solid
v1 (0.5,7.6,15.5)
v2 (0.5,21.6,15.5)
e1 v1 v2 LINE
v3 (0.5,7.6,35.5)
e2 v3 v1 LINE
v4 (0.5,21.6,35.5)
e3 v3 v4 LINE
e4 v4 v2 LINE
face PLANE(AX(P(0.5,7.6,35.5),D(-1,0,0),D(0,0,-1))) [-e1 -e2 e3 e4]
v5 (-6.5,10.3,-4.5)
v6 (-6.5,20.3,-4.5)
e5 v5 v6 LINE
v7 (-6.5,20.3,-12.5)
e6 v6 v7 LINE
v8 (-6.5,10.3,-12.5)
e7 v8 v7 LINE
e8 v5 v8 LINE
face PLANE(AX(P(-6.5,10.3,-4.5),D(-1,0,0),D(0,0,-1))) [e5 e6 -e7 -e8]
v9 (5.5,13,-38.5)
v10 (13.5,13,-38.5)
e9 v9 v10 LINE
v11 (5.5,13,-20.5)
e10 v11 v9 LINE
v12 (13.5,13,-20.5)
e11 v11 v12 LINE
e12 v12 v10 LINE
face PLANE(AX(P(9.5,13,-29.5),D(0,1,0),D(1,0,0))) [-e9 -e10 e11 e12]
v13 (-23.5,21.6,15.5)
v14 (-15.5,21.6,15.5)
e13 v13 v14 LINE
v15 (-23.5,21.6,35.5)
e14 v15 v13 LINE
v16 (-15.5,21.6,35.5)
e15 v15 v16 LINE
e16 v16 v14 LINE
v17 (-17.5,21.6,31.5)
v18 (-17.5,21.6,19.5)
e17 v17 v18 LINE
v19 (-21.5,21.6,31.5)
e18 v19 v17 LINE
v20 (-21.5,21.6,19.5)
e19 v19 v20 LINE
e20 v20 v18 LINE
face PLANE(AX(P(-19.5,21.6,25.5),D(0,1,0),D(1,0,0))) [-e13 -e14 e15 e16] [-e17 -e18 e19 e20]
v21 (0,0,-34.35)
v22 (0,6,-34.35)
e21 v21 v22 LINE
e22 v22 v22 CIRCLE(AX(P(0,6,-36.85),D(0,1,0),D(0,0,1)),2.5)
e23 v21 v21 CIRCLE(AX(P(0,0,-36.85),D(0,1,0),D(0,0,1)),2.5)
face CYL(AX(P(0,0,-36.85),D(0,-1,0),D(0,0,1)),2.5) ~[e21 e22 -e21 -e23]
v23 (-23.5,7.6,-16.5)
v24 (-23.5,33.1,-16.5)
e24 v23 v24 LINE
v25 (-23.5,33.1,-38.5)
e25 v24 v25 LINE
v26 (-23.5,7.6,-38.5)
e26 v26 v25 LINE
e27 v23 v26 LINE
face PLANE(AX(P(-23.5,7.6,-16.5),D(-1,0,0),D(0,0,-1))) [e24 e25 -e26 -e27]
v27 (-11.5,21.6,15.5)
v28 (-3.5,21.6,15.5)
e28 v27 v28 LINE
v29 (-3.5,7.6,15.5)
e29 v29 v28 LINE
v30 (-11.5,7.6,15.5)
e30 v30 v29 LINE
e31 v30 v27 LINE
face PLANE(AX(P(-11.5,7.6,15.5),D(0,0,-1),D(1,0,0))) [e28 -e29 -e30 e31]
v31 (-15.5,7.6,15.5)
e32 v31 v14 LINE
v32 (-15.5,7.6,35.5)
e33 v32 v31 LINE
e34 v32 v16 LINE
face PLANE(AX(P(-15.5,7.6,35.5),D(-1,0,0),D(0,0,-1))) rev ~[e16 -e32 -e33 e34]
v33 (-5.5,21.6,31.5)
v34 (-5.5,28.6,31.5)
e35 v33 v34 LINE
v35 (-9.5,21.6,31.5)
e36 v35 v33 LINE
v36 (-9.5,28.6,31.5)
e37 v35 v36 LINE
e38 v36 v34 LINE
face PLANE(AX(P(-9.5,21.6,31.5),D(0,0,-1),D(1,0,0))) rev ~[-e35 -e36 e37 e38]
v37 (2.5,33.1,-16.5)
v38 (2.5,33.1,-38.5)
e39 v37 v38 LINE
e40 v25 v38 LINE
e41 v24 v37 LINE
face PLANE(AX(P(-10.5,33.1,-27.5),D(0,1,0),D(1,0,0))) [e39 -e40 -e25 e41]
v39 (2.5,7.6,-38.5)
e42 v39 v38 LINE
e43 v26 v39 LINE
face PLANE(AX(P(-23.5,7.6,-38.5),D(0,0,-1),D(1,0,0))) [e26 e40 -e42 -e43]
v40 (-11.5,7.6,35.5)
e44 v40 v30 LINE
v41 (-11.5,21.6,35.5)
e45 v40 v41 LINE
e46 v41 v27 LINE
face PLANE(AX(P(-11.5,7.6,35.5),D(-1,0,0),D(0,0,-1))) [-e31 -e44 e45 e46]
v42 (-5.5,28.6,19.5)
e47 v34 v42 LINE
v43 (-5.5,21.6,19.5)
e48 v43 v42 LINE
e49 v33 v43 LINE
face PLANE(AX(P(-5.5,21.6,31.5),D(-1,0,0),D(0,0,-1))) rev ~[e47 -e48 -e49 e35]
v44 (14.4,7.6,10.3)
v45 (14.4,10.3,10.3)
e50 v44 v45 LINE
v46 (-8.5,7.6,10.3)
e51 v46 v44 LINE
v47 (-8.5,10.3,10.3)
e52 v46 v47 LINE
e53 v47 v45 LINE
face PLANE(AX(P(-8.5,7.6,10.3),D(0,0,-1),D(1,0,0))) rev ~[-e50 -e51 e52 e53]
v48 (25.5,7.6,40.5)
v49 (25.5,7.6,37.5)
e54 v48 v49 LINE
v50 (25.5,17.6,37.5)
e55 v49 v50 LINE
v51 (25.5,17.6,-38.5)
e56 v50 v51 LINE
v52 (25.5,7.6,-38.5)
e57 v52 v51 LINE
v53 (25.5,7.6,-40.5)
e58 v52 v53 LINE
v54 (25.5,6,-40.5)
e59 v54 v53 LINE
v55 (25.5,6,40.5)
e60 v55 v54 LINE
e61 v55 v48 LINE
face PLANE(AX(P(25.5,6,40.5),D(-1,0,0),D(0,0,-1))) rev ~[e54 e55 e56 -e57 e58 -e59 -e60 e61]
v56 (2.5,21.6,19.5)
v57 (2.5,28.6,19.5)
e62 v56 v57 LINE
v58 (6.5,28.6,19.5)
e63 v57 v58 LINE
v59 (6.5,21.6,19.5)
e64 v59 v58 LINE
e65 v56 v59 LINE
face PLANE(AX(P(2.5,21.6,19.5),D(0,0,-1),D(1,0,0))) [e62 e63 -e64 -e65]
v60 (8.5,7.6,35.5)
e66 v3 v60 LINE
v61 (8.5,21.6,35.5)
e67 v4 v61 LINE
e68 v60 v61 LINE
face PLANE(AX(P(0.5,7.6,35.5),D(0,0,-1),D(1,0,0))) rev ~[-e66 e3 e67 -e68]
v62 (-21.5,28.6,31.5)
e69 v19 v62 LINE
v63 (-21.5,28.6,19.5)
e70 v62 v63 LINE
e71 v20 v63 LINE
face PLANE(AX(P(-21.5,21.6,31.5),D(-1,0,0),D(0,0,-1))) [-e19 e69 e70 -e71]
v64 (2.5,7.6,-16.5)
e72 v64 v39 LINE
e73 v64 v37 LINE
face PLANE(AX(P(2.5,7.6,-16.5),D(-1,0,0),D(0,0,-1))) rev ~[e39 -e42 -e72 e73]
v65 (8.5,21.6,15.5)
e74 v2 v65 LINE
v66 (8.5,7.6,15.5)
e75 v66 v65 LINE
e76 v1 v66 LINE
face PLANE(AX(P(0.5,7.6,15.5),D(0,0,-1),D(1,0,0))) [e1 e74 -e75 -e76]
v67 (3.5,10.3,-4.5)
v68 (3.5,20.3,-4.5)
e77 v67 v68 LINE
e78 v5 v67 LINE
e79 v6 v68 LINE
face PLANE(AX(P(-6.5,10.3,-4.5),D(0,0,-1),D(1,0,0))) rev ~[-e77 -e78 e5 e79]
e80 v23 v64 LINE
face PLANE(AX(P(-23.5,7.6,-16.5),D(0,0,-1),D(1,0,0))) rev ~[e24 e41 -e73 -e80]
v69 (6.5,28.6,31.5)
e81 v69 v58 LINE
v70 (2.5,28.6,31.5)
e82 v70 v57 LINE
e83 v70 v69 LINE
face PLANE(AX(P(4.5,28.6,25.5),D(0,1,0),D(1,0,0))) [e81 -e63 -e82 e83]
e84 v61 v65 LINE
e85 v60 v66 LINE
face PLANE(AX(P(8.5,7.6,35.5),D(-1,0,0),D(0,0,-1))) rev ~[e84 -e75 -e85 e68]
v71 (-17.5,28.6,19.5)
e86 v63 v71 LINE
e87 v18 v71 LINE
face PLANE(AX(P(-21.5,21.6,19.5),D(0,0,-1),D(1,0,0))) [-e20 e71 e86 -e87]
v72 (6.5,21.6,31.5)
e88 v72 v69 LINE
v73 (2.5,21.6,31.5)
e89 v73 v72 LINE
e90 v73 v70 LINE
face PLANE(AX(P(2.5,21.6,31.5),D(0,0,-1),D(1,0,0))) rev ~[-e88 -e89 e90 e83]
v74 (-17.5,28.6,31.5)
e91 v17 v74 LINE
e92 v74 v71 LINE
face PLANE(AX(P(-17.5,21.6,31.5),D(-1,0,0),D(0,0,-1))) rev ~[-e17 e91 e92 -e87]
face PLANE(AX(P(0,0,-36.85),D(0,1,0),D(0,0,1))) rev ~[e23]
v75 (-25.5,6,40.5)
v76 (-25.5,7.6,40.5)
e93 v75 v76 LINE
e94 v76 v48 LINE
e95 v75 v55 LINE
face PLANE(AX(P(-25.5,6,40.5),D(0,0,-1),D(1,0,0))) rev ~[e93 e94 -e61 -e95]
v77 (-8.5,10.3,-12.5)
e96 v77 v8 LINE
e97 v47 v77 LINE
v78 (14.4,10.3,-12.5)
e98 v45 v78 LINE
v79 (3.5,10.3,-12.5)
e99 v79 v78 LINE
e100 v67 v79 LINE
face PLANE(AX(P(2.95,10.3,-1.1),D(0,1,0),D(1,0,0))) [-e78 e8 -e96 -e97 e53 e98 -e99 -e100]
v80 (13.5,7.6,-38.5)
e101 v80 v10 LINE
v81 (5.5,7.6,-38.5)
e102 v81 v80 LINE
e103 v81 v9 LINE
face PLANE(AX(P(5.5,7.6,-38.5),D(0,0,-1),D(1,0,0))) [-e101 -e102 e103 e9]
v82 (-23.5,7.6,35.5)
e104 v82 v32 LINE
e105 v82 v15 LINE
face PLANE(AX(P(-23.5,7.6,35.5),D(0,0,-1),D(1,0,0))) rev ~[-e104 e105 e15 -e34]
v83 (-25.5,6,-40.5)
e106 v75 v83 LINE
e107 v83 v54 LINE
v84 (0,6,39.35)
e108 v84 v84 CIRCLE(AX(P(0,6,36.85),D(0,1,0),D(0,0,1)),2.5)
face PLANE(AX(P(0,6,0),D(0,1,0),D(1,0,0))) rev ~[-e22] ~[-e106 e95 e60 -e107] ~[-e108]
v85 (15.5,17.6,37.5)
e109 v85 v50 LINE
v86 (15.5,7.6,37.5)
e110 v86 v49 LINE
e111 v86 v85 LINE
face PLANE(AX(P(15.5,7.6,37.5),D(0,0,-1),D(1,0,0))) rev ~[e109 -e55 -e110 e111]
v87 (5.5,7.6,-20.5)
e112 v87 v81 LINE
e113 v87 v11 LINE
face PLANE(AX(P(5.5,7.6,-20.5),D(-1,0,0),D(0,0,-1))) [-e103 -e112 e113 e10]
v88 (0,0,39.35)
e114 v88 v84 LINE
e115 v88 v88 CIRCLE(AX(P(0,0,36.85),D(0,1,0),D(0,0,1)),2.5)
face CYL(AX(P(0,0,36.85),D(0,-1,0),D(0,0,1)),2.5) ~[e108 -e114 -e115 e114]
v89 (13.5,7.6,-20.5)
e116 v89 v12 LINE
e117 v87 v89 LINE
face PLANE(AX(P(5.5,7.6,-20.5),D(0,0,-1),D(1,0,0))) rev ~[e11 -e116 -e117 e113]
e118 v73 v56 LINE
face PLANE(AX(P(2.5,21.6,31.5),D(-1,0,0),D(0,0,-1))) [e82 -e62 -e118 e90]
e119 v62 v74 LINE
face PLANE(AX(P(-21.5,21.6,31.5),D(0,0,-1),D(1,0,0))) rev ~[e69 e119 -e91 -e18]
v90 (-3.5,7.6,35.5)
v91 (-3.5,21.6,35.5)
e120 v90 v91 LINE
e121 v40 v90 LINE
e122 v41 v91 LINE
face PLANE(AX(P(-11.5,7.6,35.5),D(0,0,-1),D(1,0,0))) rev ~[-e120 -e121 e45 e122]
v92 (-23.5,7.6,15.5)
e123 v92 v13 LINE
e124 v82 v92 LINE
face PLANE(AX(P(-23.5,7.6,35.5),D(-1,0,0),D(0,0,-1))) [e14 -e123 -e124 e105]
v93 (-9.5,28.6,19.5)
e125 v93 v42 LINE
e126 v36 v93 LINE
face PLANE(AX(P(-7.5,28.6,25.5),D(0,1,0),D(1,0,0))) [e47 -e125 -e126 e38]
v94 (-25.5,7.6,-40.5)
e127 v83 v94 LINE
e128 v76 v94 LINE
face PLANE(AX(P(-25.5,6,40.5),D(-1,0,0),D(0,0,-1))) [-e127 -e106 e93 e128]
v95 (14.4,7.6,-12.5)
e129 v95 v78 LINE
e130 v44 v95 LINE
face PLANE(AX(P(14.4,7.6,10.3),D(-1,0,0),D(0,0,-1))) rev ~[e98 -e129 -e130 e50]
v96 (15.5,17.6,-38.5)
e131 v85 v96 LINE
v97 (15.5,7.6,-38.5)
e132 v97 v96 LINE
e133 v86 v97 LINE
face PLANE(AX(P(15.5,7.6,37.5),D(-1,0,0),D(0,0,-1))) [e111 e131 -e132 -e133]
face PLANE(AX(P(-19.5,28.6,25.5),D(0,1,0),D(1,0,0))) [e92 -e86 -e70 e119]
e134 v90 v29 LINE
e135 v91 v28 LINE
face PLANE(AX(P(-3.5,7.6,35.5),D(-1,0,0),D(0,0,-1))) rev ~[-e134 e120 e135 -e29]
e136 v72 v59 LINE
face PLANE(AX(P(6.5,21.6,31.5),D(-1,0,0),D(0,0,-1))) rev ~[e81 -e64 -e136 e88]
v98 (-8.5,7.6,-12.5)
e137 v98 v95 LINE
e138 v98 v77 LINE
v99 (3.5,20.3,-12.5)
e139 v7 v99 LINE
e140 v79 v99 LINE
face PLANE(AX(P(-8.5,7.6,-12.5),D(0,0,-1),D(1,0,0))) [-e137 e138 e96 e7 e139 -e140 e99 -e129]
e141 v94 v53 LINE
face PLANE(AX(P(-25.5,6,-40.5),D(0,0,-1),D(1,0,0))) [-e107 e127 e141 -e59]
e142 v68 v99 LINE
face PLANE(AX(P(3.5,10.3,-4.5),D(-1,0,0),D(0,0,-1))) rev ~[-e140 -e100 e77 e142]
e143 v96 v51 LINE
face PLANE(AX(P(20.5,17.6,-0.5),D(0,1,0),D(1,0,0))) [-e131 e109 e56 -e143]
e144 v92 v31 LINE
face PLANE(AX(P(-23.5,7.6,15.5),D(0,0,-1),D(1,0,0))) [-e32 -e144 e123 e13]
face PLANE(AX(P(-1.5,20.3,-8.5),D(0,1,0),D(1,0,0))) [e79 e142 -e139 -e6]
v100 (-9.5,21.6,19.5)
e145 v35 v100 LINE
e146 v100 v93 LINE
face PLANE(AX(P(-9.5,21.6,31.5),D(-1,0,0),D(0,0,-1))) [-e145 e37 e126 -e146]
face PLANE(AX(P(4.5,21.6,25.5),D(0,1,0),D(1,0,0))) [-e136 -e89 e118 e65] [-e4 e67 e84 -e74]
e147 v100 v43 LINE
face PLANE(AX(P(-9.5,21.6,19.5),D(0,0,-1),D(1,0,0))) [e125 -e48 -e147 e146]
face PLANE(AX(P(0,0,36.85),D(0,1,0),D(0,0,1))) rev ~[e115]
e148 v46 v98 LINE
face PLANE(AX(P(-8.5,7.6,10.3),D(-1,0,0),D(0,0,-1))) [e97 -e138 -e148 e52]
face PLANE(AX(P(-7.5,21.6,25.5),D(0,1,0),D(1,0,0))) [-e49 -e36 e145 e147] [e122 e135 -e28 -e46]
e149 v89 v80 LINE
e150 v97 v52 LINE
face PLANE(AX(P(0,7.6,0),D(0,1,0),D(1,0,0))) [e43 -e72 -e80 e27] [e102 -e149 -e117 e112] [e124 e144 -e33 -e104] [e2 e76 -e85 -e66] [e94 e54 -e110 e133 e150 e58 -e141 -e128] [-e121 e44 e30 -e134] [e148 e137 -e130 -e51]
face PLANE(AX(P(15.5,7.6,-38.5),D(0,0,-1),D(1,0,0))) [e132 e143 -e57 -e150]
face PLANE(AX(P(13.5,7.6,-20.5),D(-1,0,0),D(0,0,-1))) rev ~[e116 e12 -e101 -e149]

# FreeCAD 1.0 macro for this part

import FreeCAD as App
import Part
import Sketcher

V = App.Vector
Q = App.Units.Quantity


def add_polygon(sketch, points):
    """Adds a closed chain of lines whose ends are joined by coincident constraints."""
    first, n = sketch.GeometryCount, len(points)
    for a, b in zip(points, points[1:] + points[:1]):
        sketch.addGeometry(Part.LineSegment(App.Vector(*a, 0), App.Vector(*b, 0)), False)
    for i in range(n):
        sketch.addConstraint(Sketcher.Constraint("Coincident", first + i, 2, first + (i + 1) % n, 1))

doc = App.newDocument("Part")
body = doc.addObject("PartDesign::Body", "Body")

# Sketch on XZ plane
sketch1 = body.newObject("Sketcher::SketchObject", "Sketch")
sketch1.AttachmentSupport = (doc.getObject("XZ_Plane"), [""])
sketch1.MapMode = "FlatFace"
sketch1.addGeometry(Part.Circle(V(0, -36.9, 0), V(0, 0, 1), 2.5), False)
sketch1.addConstraint([
    Sketcher.Constraint("PointOnObject", 0, 3, -2),
    Sketcher.Constraint("Diameter", 0, Q("5 mm")),
    Sketcher.Constraint("DistanceY", 0, 3, -1, 1, Q("36.85 mm")),
])
pad1 = body.newObject("PartDesign::Pad", "Pad")
pad1.Profile = sketch1
pad1.Length = 6
pad1.Reversed = True
body2 = doc.addObject("PartDesign::Body", "Body001")

# Sketch on XZ plane
sketch2 = body2.newObject("Sketcher::SketchObject", "Sketch001")
sketch2.AttachmentSupport = (doc.getObject("XZ_Plane001"), [""])
sketch2.MapMode = "FlatFace"
sketch2.addGeometry(Part.Circle(V(0, 36.9, 0), V(0, 0, 1), 2.5), False)
sketch2.addConstraint([
    Sketcher.Constraint("PointOnObject", 0, 3, -2),
    Sketcher.Constraint("Diameter", 0, Q("5 mm")),
    Sketcher.Constraint("DistanceY", -1, 1, 0, 3, Q("36.85 mm")),
])
pad2 = body2.newObject("PartDesign::Pad", "Pad001")
pad2.Profile = sketch2
pad2.Length = 6
pad2.Reversed = True
body.AllowCompound = True
doc.recompute()

boolean = body.newObject("PartDesign::Boolean", "Boolean")
boolean.Type = "Fuse"
boolean.addObjects([body2])

# Sketch on XZ plane
sketch3 = body.newObject("Sketcher::SketchObject", "Sketch002")
sketch3.AttachmentSupport = (doc.getObject("XZ_Plane"), [""])
sketch3.MapMode = "FlatFace"
sketch3.AttachmentOffset = App.Placement(V(0, 0, -6), App.Rotation())
add_polygon(sketch3, [(-26, -40), (-26, 40), (26, 40), (26, -40)])  # lines 0-3
sketch3.addConstraint([
    Sketcher.Constraint("Vertical", 0),
    Sketcher.Constraint("Horizontal", 1),
    Sketcher.Constraint("Vertical", 2),
    Sketcher.Constraint("Horizontal", 3),
    Sketcher.Constraint("Symmetric", 0, 2, 2, 2, -1, 1),
    Sketcher.Constraint("DistanceX", 1, 1, 1, 2, Q("51 mm")),
    Sketcher.Constraint("DistanceY", 0, 1, 0, 2, Q("81 mm")),
])
pad3 = body.newObject("PartDesign::Pad", "Pad002")
pad3.Profile = sketch3
pad3.Length = 1.6
pad3.Reversed = True

# Sketch on XZ plane
sketch4 = body.newObject("Sketcher::SketchObject", "Sketch003")
sketch4.AttachmentSupport = (doc.getObject("XZ_Plane"), [""])
sketch4.MapMode = "FlatFace"
sketch4.AttachmentOffset = App.Placement(V(0, 0, -7.6), App.Rotation())
add_polygon(sketch4, [(-24, -38), (-24, -16), (2, -16), (2, -38)])  # lines 0-3
sketch4.addConstraint([
    Sketcher.Constraint("Vertical", 0),
    Sketcher.Constraint("Horizontal", 1),
    Sketcher.Constraint("Vertical", 2),
    Sketcher.Constraint("Horizontal", 3),
    Sketcher.Constraint("DistanceX", 1, 1, 1, 2, Q("26 mm")),
    Sketcher.Constraint("DistanceY", 0, 1, 0, 2, Q("22 mm")),
    Sketcher.Constraint("DistanceX", 0, 2, -1, 1, Q("23.5 mm")),
    Sketcher.Constraint("DistanceY", 0, 2, -1, 1, Q("16.5 mm")),
])
pad4 = body.newObject("PartDesign::Pad", "Pad003")
pad4.Profile = sketch4
pad4.Length = 25.5
pad4.Reversed = True

# Sketch on XZ plane
sketch5 = body.newObject("Sketcher::SketchObject", "Sketch004")
sketch5.AttachmentSupport = (doc.getObject("XZ_Plane"), [""])
sketch5.MapMode = "FlatFace"
sketch5.AttachmentOffset = App.Placement(V(0, 0, -7.6), App.Rotation())
add_polygon(sketch5, [(6, -38), (6, -20), (14, -20), (14, -38)])  # lines 0-3
sketch5.addConstraint([
    Sketcher.Constraint("Vertical", 0),
    Sketcher.Constraint("Horizontal", 1),
    Sketcher.Constraint("Vertical", 2),
    Sketcher.Constraint("Horizontal", 3),
    Sketcher.Constraint("DistanceX", 1, 1, 1, 2, Q("8 mm")),
    Sketcher.Constraint("DistanceY", 0, 1, 0, 2, Q("18 mm")),
    Sketcher.Constraint("DistanceX", -1, 1, 0, 2, Q("5.5 mm")),
    Sketcher.Constraint("DistanceY", 0, 2, -1, 1, Q("20.5 mm")),
])
pad5 = body.newObject("PartDesign::Pad", "Pad004")
pad5.Profile = sketch5
pad5.Length = 5.4
pad5.Reversed = True

# Sketch on XZ plane
sketch6 = body.newObject("Sketcher::SketchObject", "Sketch005")
sketch6.AttachmentSupport = (doc.getObject("XZ_Plane"), [""])
sketch6.MapMode = "FlatFace"
sketch6.AttachmentOffset = App.Placement(V(0, 0, -7.6), App.Rotation())
add_polygon(sketch6, [(-8, -12), (-8, 10), (14, 10), (14, -12)])  # lines 0-3
sketch6.addConstraint([
    Sketcher.Constraint("Vertical", 0),
    Sketcher.Constraint("Horizontal", 1),
    Sketcher.Constraint("Vertical", 2),
    Sketcher.Constraint("Horizontal", 3),
    Sketcher.Constraint("DistanceX", 1, 1, 1, 2, Q("22.9 mm")),
    Sketcher.Constraint("DistanceY", 0, 1, 0, 2, Q("22.8 mm")),
    Sketcher.Constraint("DistanceX", 0, 2, -1, 1, Q("8.5 mm")),
    Sketcher.Constraint("DistanceY", -1, 1, 0, 2, Q("10.3 mm")),
])
pad6 = body.newObject("PartDesign::Pad", "Pad005")
pad6.Profile = sketch6
pad6.Length = 2.7
pad6.Reversed = True

# Sketch on XZ plane
sketch7 = body.newObject("Sketcher::SketchObject", "Sketch006")
sketch7.AttachmentSupport = (doc.getObject("XZ_Plane"), [""])
sketch7.MapMode = "FlatFace"
sketch7.AttachmentOffset = App.Placement(V(0, 0, -10.3), App.Rotation())
add_polygon(sketch7, [(-6, -12), (-6, -4), (4, -4), (4, -12)])  # lines 0-3
sketch7.addConstraint([
    Sketcher.Constraint("Vertical", 0),
    Sketcher.Constraint("Horizontal", 1),
    Sketcher.Constraint("Vertical", 2),
    Sketcher.Constraint("Horizontal", 3),
    Sketcher.Constraint("DistanceX", 1, 1, 1, 2, Q("10 mm")),
    Sketcher.Constraint("DistanceY", 0, 1, 0, 2, Q("8 mm")),
    Sketcher.Constraint("DistanceX", 0, 2, -1, 1, Q("6.5 mm")),
    Sketcher.Constraint("DistanceY", 0, 2, -1, 1, Q("4.5 mm")),
])
pad7 = body.newObject("PartDesign::Pad", "Pad006")
pad7.Profile = sketch7
pad7.Length = 10
pad7.Reversed = True

# Sketch on XZ plane
sketch8 = body.newObject("Sketcher::SketchObject", "Sketch007")
sketch8.AttachmentSupport = (doc.getObject("XZ_Plane"), [""])
sketch8.MapMode = "FlatFace"
sketch8.AttachmentOffset = App.Placement(V(0, 0, -7.6), App.Rotation())
add_polygon(sketch8, [(-24, 16), (-24, 36), (-16, 36), (-16, 16)])  # lines 0-3
sketch8.addConstraint([
    Sketcher.Constraint("Vertical", 0),
    Sketcher.Constraint("Horizontal", 1),
    Sketcher.Constraint("Vertical", 2),
    Sketcher.Constraint("Horizontal", 3),
    Sketcher.Constraint("DistanceX", 1, 1, 1, 2, Q("8 mm")),
    Sketcher.Constraint("DistanceY", 0, 1, 0, 2, Q("20 mm")),
    Sketcher.Constraint("DistanceX", 0, 2, -1, 1, Q("23.5 mm")),
    Sketcher.Constraint("DistanceY", -1, 1, 0, 2, Q("35.5 mm")),
])
pad8 = body.newObject("PartDesign::Pad", "Pad007")
pad8.Profile = sketch8
pad8.Length = 14
pad8.Reversed = True

# Sketch on XZ plane
sketch9 = body.newObject("Sketcher::SketchObject", "Sketch008")
sketch9.AttachmentSupport = (doc.getObject("XZ_Plane"), [""])
sketch9.MapMode = "FlatFace"
sketch9.AttachmentOffset = App.Placement(V(0, 0, -21.6), App.Rotation())
add_polygon(sketch9, [(-21.5, 19.5), (-21.5, 31.5), (-17.5, 31.5), (-17.5, 19.5)])  # lines 0-3
sketch9.addConstraint([
    Sketcher.Constraint("Vertical", 0),
    Sketcher.Constraint("Horizontal", 1),
    Sketcher.Constraint("Vertical", 2),
    Sketcher.Constraint("Horizontal", 3),
    Sketcher.Constraint("DistanceX", 1, 1, 1, 2, Q("4 mm")),
    Sketcher.Constraint("DistanceY", 0, 1, 0, 2, Q("12 mm")),
    Sketcher.Constraint("DistanceX", 0, 2, -1, 1, Q("21.5 mm")),
    Sketcher.Constraint("DistanceY", -1, 1, 0, 2, Q("31.5 mm")),
])
pad9 = body.newObject("PartDesign::Pad", "Pad008")
pad9.Profile = sketch9
pad9.Length = 7
pad9.Reversed = True

# Sketch on XZ plane
sketch10 = body.newObject("Sketcher::SketchObject", "Sketch009")
sketch10.AttachmentSupport = (doc.getObject("XZ_Plane"), [""])
sketch10.MapMode = "FlatFace"
sketch10.AttachmentOffset = App.Placement(V(0, 0, -7.6), App.Rotation())
add_polygon(sketch10, [(-12, 16), (-12, 36), (-4, 36), (-4, 16)])  # lines 0-3
sketch10.addConstraint([
    Sketcher.Constraint("Vertical", 0),
    Sketcher.Constraint("Horizontal", 1),
    Sketcher.Constraint("Vertical", 2),
    Sketcher.Constraint("Horizontal", 3),
    Sketcher.Constraint("DistanceX", 1, 1, 1, 2, Q("8 mm")),
    Sketcher.Constraint("DistanceY", 0, 1, 0, 2, Q("20 mm")),
    Sketcher.Constraint("DistanceX", 0, 2, -1, 1, Q("11.5 mm")),
    Sketcher.Constraint("DistanceY", -1, 1, 0, 2, Q("35.5 mm")),
])
pad10 = body.newObject("PartDesign::Pad", "Pad009")
pad10.Profile = sketch10
pad10.Length = 14
pad10.Reversed = True

# Sketch on XZ plane
sketch11 = body.newObject("Sketcher::SketchObject", "Sketch010")
sketch11.AttachmentSupport = (doc.getObject("XZ_Plane"), [""])
sketch11.MapMode = "FlatFace"
sketch11.AttachmentOffset = App.Placement(V(0, 0, -21.6), App.Rotation())
add_polygon(sketch11, [(-9.5, 19.5), (-9.5, 31.5), (-5.5, 31.5), (-5.5, 19.5)])  # lines 0-3
sketch11.addConstraint([
    Sketcher.Constraint("Vertical", 0),
    Sketcher.Constraint("Horizontal", 1),
    Sketcher.Constraint("Vertical", 2),
    Sketcher.Constraint("Horizontal", 3),
    Sketcher.Constraint("DistanceX", 1, 1, 1, 2, Q("4 mm")),
    Sketcher.Constraint("DistanceY", 0, 1, 0, 2, Q("12 mm")),
    Sketcher.Constraint("DistanceX", 0, 2, -1, 1, Q("9.5 mm")),
    Sketcher.Constraint("DistanceY", -1, 1, 0, 2, Q("31.5 mm")),
])
pad11 = body.newObject("PartDesign::Pad", "Pad010")
pad11.Profile = sketch11
pad11.Length = 7
pad11.Reversed = True

# Sketch on XZ plane
sketch12 = body.newObject("Sketcher::SketchObject", "Sketch011")
sketch12.AttachmentSupport = (doc.getObject("XZ_Plane"), [""])
sketch12.MapMode = "FlatFace"
sketch12.AttachmentOffset = App.Placement(V(0, 0, -7.6), App.Rotation())
add_polygon(sketch12, [(0, 16), (0, 36), (8, 36), (8, 16)])  # lines 0-3
sketch12.addConstraint([
    Sketcher.Constraint("Vertical", 0),
    Sketcher.Constraint("Horizontal", 1),
    Sketcher.Constraint("Vertical", 2),
    Sketcher.Constraint("Horizontal", 3),
    Sketcher.Constraint("DistanceX", 1, 1, 1, 2, Q("8 mm")),
    Sketcher.Constraint("DistanceY", 0, 1, 0, 2, Q("20 mm")),
    Sketcher.Constraint("DistanceX", -1, 1, 0, 2, Q("0.5 mm")),
    Sketcher.Constraint("DistanceY", -1, 1, 0, 2, Q("35.5 mm")),
])
pad12 = body.newObject("PartDesign::Pad", "Pad011")
pad12.Profile = sketch12
pad12.Length = 14
pad12.Reversed = True

# Sketch on XZ plane
sketch13 = body.newObject("Sketcher::SketchObject", "Sketch012")
sketch13.AttachmentSupport = (doc.getObject("XZ_Plane"), [""])
sketch13.MapMode = "FlatFace"
sketch13.AttachmentOffset = App.Placement(V(0, 0, -21.6), App.Rotation())
add_polygon(sketch13, [(2.5, 19.5), (2.5, 31.5), (6.5, 31.5), (6.5, 19.5)])  # lines 0-3
sketch13.addConstraint([
    Sketcher.Constraint("Vertical", 0),
    Sketcher.Constraint("Horizontal", 1),
    Sketcher.Constraint("Vertical", 2),
    Sketcher.Constraint("Horizontal", 3),
    Sketcher.Constraint("DistanceX", 1, 1, 1, 2, Q("4 mm")),
    Sketcher.Constraint("DistanceY", 0, 1, 0, 2, Q("12 mm")),
    Sketcher.Constraint("DistanceX", -1, 1, 0, 2, Q("2.5 mm")),
    Sketcher.Constraint("DistanceY", -1, 1, 0, 2, Q("31.5 mm")),
])
pad13 = body.newObject("PartDesign::Pad", "Pad012")
pad13.Profile = sketch13
pad13.Length = 7
pad13.Reversed = True

# Sketch on XZ plane
sketch14 = body.newObject("Sketcher::SketchObject", "Sketch013")
sketch14.AttachmentSupport = (doc.getObject("XZ_Plane"), [""])
sketch14.MapMode = "FlatFace"
sketch14.AttachmentOffset = App.Placement(V(0, 0, -7.6), App.Rotation())
add_polygon(sketch14, [(16, -38), (16, 38), (26, 38), (26, -38)])  # lines 0-3
sketch14.addConstraint([
    Sketcher.Constraint("Vertical", 0),
    Sketcher.Constraint("Horizontal", 1),
    Sketcher.Constraint("Vertical", 2),
    Sketcher.Constraint("Horizontal", 3),
    Sketcher.Constraint("DistanceX", 1, 1, 1, 2, Q("10 mm")),
    Sketcher.Constraint("DistanceY", 0, 1, 0, 2, Q("76 mm")),
    Sketcher.Constraint("DistanceX", -1, 1, 0, 2, Q("15.5 mm")),
    Sketcher.Constraint("DistanceY", -1, 1, 0, 2, Q("37.5 mm")),
])
pad14 = body.newObject("PartDesign::Pad", "Pad013")
pad14.Profile = sketch14
pad14.Length = 10
pad14.Reversed = True

doc.recompute()
